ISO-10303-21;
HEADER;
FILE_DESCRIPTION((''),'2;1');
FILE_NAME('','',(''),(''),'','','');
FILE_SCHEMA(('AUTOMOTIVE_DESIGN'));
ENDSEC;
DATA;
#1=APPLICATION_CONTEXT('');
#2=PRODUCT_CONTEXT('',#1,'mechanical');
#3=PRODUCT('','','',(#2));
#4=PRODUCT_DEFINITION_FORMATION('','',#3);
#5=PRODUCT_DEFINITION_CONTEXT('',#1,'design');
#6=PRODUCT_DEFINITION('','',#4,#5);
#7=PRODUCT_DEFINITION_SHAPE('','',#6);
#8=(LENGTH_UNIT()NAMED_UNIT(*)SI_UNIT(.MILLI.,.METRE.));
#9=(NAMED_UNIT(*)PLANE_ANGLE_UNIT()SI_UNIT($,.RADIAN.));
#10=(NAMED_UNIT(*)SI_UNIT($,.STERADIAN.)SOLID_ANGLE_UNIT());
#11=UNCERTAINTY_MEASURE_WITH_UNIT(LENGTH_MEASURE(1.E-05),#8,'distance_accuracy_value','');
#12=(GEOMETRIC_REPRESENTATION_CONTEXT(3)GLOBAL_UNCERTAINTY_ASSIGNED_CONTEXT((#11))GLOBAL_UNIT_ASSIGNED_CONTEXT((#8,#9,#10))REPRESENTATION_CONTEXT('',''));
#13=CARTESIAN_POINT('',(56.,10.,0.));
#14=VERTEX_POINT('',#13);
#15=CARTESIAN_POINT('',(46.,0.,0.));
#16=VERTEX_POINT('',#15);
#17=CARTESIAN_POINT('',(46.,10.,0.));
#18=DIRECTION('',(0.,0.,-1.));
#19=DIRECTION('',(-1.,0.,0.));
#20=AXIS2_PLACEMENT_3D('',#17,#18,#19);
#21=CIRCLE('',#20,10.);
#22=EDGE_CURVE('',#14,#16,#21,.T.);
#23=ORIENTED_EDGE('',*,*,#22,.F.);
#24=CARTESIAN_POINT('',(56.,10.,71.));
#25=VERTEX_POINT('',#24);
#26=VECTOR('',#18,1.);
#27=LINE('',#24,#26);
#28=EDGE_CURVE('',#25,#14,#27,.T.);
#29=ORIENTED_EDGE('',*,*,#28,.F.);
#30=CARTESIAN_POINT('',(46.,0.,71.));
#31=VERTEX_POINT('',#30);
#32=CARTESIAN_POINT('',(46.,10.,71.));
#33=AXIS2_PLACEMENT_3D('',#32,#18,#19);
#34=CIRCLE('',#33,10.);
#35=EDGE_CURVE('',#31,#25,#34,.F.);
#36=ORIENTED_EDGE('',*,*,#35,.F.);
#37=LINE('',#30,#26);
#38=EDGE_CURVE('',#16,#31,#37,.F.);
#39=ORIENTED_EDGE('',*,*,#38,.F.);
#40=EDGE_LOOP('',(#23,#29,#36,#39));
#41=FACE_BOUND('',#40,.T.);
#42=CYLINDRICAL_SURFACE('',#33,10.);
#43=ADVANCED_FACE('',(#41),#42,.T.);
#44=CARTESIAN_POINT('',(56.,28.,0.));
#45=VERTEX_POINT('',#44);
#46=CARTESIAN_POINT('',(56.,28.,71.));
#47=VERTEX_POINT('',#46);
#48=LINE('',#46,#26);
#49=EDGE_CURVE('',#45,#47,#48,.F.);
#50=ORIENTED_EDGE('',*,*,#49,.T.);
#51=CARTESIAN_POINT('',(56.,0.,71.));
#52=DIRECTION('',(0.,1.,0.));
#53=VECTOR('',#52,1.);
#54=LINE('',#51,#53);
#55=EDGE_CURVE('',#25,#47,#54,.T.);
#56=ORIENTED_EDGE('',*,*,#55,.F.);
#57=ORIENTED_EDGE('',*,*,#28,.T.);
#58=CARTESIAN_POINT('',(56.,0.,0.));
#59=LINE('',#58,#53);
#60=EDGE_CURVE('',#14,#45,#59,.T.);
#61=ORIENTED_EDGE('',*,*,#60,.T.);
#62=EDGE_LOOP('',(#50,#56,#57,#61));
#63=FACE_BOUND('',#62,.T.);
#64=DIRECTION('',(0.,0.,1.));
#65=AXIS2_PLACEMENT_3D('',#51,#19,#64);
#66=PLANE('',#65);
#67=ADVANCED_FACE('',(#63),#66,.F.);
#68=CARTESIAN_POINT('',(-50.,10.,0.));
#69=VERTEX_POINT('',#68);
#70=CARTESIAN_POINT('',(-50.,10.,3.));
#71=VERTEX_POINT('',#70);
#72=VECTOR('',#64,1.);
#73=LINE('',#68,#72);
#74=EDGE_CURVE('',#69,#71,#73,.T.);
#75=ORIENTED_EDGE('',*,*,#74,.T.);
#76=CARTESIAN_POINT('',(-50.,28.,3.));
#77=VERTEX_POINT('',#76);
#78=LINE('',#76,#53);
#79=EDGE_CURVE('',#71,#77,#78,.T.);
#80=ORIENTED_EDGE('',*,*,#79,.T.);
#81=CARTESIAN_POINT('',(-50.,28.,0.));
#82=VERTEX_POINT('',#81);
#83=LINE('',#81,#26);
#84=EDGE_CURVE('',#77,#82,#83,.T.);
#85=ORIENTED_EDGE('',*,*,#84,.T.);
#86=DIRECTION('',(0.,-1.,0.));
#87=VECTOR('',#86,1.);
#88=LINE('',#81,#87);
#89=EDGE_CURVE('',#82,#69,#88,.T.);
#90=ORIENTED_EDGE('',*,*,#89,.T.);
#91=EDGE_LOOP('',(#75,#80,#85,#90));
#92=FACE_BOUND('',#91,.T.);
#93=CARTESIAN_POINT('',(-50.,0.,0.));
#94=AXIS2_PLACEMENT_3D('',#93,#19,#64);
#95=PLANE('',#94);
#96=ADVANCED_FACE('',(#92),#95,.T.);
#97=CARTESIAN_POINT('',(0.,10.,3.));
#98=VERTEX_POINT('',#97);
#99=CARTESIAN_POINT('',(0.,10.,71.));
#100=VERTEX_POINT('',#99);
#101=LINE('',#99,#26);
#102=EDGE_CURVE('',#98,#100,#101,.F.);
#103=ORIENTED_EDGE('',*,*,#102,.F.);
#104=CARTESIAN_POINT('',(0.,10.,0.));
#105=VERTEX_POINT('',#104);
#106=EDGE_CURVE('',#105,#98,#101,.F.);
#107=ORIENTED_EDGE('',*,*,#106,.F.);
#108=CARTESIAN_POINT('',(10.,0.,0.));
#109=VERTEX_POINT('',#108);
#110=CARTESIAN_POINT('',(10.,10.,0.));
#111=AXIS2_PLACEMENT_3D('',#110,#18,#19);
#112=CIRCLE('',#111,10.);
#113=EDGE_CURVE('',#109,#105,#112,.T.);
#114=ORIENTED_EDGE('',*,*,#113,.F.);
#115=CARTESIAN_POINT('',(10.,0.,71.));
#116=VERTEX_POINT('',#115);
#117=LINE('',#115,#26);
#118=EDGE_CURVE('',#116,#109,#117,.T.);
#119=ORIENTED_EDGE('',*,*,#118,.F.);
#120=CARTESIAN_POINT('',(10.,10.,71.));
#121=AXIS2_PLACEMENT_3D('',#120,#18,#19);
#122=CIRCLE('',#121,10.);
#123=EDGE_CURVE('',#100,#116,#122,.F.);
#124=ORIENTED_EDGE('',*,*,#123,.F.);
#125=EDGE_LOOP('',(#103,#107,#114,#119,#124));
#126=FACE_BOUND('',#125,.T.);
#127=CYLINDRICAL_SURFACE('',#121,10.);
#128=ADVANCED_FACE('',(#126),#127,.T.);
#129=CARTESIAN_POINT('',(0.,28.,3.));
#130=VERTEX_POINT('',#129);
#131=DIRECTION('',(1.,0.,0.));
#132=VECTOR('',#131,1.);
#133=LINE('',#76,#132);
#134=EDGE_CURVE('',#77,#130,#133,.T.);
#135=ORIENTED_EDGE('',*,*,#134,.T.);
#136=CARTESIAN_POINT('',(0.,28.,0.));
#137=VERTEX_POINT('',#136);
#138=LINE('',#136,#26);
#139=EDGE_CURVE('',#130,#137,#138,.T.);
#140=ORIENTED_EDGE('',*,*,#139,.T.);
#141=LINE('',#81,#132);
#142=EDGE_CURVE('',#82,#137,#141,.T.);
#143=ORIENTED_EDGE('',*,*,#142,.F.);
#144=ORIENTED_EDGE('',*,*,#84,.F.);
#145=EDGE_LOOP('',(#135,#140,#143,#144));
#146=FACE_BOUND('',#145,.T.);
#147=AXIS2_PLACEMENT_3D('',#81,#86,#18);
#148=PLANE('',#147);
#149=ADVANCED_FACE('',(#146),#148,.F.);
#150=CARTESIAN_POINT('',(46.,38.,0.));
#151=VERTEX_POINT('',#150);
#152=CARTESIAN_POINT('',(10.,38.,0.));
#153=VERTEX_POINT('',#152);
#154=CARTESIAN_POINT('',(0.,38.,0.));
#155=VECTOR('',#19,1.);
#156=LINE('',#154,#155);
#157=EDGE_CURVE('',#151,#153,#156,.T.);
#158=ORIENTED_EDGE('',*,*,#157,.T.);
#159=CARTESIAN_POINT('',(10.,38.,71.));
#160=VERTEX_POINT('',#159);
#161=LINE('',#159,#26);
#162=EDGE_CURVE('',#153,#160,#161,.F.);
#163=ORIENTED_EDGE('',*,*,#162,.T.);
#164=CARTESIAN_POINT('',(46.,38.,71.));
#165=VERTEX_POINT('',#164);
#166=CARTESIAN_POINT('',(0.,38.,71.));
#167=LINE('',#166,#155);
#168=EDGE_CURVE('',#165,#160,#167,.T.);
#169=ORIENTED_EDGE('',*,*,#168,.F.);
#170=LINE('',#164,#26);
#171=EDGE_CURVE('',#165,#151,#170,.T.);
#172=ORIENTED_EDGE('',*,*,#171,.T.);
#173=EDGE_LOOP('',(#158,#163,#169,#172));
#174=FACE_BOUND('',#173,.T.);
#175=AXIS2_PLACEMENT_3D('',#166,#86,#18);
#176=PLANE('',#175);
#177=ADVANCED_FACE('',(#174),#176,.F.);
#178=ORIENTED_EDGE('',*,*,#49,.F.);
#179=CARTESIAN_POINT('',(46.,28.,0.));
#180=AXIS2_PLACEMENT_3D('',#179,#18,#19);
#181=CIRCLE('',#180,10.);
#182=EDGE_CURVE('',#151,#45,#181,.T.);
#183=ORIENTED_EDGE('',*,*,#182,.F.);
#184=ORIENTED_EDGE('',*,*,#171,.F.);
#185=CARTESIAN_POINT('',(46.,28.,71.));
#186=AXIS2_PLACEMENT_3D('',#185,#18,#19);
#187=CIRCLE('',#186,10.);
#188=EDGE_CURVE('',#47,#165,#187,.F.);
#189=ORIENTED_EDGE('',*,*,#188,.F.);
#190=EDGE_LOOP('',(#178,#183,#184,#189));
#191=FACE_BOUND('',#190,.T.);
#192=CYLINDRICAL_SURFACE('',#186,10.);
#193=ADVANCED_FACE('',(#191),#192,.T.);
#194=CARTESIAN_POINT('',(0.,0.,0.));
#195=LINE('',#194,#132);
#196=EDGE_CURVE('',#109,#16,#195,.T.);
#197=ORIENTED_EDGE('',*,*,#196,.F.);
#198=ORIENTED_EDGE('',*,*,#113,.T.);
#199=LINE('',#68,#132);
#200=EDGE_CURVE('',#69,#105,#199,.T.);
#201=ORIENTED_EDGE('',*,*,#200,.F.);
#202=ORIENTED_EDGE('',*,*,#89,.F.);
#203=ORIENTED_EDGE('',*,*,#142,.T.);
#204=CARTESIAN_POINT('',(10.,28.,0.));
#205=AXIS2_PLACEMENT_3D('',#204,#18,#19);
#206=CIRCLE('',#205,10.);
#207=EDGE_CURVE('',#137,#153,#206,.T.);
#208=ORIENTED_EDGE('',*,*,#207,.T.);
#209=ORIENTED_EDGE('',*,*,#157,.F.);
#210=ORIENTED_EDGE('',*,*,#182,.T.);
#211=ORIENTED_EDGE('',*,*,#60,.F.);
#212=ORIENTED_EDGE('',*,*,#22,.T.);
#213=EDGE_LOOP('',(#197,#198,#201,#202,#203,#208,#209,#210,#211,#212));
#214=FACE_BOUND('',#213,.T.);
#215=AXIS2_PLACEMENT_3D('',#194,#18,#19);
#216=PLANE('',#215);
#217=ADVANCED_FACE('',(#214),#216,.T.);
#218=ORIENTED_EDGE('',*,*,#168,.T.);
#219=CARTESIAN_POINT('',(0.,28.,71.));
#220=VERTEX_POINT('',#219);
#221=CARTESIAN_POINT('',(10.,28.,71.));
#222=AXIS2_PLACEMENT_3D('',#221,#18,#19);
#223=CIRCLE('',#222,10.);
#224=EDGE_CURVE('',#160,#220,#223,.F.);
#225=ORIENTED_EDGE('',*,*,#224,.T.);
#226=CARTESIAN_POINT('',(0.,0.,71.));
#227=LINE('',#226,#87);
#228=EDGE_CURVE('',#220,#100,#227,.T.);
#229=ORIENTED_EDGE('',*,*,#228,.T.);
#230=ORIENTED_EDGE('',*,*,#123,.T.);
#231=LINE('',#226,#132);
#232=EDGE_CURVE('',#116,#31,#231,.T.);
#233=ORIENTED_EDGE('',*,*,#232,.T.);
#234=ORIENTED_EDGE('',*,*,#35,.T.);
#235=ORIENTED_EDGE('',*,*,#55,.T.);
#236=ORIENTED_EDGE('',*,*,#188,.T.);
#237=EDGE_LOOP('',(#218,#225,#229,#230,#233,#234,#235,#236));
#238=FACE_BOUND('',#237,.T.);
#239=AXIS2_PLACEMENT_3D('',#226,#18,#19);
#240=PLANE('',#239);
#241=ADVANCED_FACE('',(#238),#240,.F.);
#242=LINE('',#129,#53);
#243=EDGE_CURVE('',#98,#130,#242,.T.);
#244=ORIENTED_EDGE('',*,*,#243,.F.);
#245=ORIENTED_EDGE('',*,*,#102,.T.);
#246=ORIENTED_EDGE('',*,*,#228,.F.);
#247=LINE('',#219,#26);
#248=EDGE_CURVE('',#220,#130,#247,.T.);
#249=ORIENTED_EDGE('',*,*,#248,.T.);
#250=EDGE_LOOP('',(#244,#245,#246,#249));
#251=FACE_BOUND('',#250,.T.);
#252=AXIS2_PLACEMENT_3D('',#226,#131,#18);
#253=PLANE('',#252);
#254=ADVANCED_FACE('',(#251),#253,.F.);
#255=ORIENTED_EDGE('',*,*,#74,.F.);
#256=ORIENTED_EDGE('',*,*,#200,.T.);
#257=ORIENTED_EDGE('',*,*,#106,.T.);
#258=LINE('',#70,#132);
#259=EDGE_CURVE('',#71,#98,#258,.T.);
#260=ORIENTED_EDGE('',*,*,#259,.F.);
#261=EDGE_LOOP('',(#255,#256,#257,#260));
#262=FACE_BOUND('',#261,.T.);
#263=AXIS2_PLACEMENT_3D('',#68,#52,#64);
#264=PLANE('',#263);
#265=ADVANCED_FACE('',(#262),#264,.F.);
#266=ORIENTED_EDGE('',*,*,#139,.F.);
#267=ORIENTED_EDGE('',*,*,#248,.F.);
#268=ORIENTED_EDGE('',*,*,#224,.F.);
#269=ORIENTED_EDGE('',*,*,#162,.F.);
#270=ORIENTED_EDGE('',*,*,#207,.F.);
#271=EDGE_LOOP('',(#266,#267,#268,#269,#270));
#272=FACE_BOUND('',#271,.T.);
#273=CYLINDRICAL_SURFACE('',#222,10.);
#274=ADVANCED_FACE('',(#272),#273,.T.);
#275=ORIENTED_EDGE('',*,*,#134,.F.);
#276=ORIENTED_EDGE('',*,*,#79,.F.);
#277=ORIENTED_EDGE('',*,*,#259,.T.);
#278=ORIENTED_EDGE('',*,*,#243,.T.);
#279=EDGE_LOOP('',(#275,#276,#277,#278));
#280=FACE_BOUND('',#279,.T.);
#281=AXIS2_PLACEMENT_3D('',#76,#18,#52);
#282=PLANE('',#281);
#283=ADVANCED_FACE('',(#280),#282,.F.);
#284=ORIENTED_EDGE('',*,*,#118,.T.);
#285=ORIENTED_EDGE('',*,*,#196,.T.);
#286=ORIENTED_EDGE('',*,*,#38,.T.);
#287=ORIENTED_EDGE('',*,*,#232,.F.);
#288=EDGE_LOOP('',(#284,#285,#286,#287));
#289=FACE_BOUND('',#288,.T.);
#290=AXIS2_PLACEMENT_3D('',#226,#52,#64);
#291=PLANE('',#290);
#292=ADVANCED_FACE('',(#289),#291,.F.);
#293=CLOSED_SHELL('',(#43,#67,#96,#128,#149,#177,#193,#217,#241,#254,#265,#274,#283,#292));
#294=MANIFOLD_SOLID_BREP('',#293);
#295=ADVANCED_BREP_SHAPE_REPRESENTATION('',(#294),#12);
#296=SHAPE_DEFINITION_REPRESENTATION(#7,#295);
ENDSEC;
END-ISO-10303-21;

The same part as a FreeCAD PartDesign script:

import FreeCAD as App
import Part
import Sketcher
Q = App.Units.Quantity


def edges_at(feature, points):
    """Names of the edges that pass closest to the given points."""
    edges = feature.Shape.Edges
    near = lambda p: min(range(len(edges)), key=lambda i: edges[i].distToShape(Part.Vertex(*p))[0])
    return sorted({f"Edge{near(p) + 1}" for p in points})


def add_polygon(sketch, points):
    """Adds a closed chain of lines whose ends are joined by coincident constraints."""
    first, n = sketch.GeometryCount, len(points)
    for a, b in zip(points, points[1:] + points[:1]):
        sketch.addGeometry(Part.LineSegment(App.Vector(*a, 0), App.Vector(*b, 0)), False)
    for i in range(n):
        sketch.addConstraint(Sketcher.Constraint("Coincident", first + i, 2, first + (i + 1) % n, 1))

doc = App.newDocument("Part")
params = doc.addObject("Spreadsheet::Sheet", "Params")
for row, (alias, value) in enumerate([
    ("sketch1_width", "56 mm"),
    ("sketch1_height", "38 mm"),
    ("pad1_length", "71 mm"),
    ("fillet_radius", "10 mm"),
    ("sketch2_width", "18 mm"),
    ("sketch2_height", "3 mm"),
    ("pad2_length", "50 mm"),
], start=1):
    params.set(f"A{row}", alias)
    params.set(f"B{row}", "=" + value)
    params.setAlias(f"B{row}", alias)

body = doc.addObject("PartDesign::Body", "Body")

# Sketch on XY plane
sketch1 = body.newObject("Sketcher::SketchObject", "Sketch")
sketch1.AttachmentSupport = (doc.getObject("XY_Plane"), [""])
sketch1.MapMode = "FlatFace"
add_polygon(sketch1, [(0, 38), (0, 0), (56, 0), (56, 38)])  # lines 0-3
sketch1.addConstraint(Sketcher.Constraint("Vertical", 0))
sketch1.addConstraint(Sketcher.Constraint("Horizontal", 1))
sketch1.addConstraint(Sketcher.Constraint("Vertical", 2))
sketch1.addConstraint(Sketcher.Constraint("Horizontal", 3))
sketch1.addConstraint(Sketcher.Constraint("Coincident", 0, 2, -1, 1))
sketch1.addConstraint(Sketcher.Constraint("DistanceX", 1, 1, 1, 2, Q("56 mm")))
sketch1.addConstraint(Sketcher.Constraint("DistanceY", 0, 2, 0, 1, Q("38 mm")))
sketch1.setExpression("Constraints[9]", "Params.sketch1_width")
sketch1.setExpression("Constraints[10]", "Params.sketch1_height")
pad1 = body.newObject("PartDesign::Pad", "Pad")
pad1.Profile = sketch1
pad1.setExpression("Length", "Params.pad1_length")
doc.recompute()

fillet = body.newObject("PartDesign::Fillet", "Fillet")
fillet.Base = (pad1, edges_at(pad1, [
    (0, 38, 35.5),
    (56, 38, 35.5),
    (56, 0, 35.5),
    (0, 0, 35.5),
]))
fillet.setExpression("Radius", "Params.fillet_radius")

# Sketch on YZ plane
sketch2 = body.newObject("Sketcher::SketchObject", "Sketch001")
sketch2.AttachmentSupport = (doc.getObject("YZ_Plane"), [""])
sketch2.MapMode = "FlatFace"
add_polygon(sketch2, [(28, 0), (10, 0), (10, 3), (28, 3)])  # lines 0-3
sketch2.addConstraint(Sketcher.Constraint("Horizontal", 0))
sketch2.addConstraint(Sketcher.Constraint("Vertical", 1))
sketch2.addConstraint(Sketcher.Constraint("Horizontal", 2))
sketch2.addConstraint(Sketcher.Constraint("Vertical", 3))
sketch2.addConstraint(Sketcher.Constraint("PointOnObject", 0, 2, -1))
sketch2.addConstraint(Sketcher.Constraint("DistanceX", 0, 2, 0, 1, Q("18 mm")))
sketch2.addConstraint(Sketcher.Constraint("DistanceY", 1, 1, 1, 2, Q("3 mm")))
sketch2.addConstraint(Sketcher.Constraint("DistanceX", -1, 1, 0, 2, Q("10 mm")))
sketch2.setExpression("Constraints[9]", "Params.sketch2_width")
sketch2.setExpression("Constraints[10]", "Params.sketch2_height")
pad2 = body.newObject("PartDesign::Pad", "Pad001")
pad2.Profile = sketch2
pad2.setExpression("Length", "Params.pad2_length")
pad2.Reversed = True

doc.recompute()
